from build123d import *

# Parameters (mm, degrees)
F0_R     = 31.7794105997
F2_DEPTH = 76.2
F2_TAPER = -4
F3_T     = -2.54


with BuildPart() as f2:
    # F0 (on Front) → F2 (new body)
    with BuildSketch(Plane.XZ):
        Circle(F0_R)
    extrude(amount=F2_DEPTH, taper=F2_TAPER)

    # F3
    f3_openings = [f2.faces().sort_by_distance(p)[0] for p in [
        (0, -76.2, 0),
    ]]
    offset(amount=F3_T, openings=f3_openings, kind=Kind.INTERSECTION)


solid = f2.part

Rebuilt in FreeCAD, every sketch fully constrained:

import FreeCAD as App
import Part
import Sketcher
from FreeCAD import Vector
Q = App.Units.Quantity


def faces_at(feature, points):
    """Names of the faces that lie closest to the given points."""
    faces = feature.Shape.Faces
    near = lambda p: min(range(len(faces)), key=lambda i: faces[i].distToShape(Part.Vertex(*p))[0])
    return sorted({f"Face{near(p) + 1}" for p in points})

doc = App.newDocument("Part")
body = doc.addObject("PartDesign::Body", "Body")

# Sketch on XZ plane
sketch1 = body.newObject("Sketcher::SketchObject", "Sketch")
sketch1.AttachmentSupport = (doc.getObject("XZ_Plane"), [""])
sketch1.MapMode = "FlatFace"
sketch1.addGeometry(Part.Circle(Vector(0, 0, 0), Vector(0, 0, 1), 32), False)
sketch1.addConstraint([
    Sketcher.Constraint("Coincident", 0, 3, -1, 1),
    Sketcher.Constraint("Diameter", 0, Q("63.558821 mm")),
])
pad1 = body.newObject("PartDesign::Pad", "Pad")
pad1.Profile = sketch1
pad1.Length = Q("3 in")
pad1.TaperAngle = 4
doc.recompute()

thickness = body.newObject("PartDesign::Thickness", "Thickness")
thickness.Base = (pad1, faces_at(pad1, [(0, -76.2, 0)]))
thickness.Value = Q("0.1 in")
thickness.Reversed = True
thickness.Join = "Intersection"

doc.recompute()
